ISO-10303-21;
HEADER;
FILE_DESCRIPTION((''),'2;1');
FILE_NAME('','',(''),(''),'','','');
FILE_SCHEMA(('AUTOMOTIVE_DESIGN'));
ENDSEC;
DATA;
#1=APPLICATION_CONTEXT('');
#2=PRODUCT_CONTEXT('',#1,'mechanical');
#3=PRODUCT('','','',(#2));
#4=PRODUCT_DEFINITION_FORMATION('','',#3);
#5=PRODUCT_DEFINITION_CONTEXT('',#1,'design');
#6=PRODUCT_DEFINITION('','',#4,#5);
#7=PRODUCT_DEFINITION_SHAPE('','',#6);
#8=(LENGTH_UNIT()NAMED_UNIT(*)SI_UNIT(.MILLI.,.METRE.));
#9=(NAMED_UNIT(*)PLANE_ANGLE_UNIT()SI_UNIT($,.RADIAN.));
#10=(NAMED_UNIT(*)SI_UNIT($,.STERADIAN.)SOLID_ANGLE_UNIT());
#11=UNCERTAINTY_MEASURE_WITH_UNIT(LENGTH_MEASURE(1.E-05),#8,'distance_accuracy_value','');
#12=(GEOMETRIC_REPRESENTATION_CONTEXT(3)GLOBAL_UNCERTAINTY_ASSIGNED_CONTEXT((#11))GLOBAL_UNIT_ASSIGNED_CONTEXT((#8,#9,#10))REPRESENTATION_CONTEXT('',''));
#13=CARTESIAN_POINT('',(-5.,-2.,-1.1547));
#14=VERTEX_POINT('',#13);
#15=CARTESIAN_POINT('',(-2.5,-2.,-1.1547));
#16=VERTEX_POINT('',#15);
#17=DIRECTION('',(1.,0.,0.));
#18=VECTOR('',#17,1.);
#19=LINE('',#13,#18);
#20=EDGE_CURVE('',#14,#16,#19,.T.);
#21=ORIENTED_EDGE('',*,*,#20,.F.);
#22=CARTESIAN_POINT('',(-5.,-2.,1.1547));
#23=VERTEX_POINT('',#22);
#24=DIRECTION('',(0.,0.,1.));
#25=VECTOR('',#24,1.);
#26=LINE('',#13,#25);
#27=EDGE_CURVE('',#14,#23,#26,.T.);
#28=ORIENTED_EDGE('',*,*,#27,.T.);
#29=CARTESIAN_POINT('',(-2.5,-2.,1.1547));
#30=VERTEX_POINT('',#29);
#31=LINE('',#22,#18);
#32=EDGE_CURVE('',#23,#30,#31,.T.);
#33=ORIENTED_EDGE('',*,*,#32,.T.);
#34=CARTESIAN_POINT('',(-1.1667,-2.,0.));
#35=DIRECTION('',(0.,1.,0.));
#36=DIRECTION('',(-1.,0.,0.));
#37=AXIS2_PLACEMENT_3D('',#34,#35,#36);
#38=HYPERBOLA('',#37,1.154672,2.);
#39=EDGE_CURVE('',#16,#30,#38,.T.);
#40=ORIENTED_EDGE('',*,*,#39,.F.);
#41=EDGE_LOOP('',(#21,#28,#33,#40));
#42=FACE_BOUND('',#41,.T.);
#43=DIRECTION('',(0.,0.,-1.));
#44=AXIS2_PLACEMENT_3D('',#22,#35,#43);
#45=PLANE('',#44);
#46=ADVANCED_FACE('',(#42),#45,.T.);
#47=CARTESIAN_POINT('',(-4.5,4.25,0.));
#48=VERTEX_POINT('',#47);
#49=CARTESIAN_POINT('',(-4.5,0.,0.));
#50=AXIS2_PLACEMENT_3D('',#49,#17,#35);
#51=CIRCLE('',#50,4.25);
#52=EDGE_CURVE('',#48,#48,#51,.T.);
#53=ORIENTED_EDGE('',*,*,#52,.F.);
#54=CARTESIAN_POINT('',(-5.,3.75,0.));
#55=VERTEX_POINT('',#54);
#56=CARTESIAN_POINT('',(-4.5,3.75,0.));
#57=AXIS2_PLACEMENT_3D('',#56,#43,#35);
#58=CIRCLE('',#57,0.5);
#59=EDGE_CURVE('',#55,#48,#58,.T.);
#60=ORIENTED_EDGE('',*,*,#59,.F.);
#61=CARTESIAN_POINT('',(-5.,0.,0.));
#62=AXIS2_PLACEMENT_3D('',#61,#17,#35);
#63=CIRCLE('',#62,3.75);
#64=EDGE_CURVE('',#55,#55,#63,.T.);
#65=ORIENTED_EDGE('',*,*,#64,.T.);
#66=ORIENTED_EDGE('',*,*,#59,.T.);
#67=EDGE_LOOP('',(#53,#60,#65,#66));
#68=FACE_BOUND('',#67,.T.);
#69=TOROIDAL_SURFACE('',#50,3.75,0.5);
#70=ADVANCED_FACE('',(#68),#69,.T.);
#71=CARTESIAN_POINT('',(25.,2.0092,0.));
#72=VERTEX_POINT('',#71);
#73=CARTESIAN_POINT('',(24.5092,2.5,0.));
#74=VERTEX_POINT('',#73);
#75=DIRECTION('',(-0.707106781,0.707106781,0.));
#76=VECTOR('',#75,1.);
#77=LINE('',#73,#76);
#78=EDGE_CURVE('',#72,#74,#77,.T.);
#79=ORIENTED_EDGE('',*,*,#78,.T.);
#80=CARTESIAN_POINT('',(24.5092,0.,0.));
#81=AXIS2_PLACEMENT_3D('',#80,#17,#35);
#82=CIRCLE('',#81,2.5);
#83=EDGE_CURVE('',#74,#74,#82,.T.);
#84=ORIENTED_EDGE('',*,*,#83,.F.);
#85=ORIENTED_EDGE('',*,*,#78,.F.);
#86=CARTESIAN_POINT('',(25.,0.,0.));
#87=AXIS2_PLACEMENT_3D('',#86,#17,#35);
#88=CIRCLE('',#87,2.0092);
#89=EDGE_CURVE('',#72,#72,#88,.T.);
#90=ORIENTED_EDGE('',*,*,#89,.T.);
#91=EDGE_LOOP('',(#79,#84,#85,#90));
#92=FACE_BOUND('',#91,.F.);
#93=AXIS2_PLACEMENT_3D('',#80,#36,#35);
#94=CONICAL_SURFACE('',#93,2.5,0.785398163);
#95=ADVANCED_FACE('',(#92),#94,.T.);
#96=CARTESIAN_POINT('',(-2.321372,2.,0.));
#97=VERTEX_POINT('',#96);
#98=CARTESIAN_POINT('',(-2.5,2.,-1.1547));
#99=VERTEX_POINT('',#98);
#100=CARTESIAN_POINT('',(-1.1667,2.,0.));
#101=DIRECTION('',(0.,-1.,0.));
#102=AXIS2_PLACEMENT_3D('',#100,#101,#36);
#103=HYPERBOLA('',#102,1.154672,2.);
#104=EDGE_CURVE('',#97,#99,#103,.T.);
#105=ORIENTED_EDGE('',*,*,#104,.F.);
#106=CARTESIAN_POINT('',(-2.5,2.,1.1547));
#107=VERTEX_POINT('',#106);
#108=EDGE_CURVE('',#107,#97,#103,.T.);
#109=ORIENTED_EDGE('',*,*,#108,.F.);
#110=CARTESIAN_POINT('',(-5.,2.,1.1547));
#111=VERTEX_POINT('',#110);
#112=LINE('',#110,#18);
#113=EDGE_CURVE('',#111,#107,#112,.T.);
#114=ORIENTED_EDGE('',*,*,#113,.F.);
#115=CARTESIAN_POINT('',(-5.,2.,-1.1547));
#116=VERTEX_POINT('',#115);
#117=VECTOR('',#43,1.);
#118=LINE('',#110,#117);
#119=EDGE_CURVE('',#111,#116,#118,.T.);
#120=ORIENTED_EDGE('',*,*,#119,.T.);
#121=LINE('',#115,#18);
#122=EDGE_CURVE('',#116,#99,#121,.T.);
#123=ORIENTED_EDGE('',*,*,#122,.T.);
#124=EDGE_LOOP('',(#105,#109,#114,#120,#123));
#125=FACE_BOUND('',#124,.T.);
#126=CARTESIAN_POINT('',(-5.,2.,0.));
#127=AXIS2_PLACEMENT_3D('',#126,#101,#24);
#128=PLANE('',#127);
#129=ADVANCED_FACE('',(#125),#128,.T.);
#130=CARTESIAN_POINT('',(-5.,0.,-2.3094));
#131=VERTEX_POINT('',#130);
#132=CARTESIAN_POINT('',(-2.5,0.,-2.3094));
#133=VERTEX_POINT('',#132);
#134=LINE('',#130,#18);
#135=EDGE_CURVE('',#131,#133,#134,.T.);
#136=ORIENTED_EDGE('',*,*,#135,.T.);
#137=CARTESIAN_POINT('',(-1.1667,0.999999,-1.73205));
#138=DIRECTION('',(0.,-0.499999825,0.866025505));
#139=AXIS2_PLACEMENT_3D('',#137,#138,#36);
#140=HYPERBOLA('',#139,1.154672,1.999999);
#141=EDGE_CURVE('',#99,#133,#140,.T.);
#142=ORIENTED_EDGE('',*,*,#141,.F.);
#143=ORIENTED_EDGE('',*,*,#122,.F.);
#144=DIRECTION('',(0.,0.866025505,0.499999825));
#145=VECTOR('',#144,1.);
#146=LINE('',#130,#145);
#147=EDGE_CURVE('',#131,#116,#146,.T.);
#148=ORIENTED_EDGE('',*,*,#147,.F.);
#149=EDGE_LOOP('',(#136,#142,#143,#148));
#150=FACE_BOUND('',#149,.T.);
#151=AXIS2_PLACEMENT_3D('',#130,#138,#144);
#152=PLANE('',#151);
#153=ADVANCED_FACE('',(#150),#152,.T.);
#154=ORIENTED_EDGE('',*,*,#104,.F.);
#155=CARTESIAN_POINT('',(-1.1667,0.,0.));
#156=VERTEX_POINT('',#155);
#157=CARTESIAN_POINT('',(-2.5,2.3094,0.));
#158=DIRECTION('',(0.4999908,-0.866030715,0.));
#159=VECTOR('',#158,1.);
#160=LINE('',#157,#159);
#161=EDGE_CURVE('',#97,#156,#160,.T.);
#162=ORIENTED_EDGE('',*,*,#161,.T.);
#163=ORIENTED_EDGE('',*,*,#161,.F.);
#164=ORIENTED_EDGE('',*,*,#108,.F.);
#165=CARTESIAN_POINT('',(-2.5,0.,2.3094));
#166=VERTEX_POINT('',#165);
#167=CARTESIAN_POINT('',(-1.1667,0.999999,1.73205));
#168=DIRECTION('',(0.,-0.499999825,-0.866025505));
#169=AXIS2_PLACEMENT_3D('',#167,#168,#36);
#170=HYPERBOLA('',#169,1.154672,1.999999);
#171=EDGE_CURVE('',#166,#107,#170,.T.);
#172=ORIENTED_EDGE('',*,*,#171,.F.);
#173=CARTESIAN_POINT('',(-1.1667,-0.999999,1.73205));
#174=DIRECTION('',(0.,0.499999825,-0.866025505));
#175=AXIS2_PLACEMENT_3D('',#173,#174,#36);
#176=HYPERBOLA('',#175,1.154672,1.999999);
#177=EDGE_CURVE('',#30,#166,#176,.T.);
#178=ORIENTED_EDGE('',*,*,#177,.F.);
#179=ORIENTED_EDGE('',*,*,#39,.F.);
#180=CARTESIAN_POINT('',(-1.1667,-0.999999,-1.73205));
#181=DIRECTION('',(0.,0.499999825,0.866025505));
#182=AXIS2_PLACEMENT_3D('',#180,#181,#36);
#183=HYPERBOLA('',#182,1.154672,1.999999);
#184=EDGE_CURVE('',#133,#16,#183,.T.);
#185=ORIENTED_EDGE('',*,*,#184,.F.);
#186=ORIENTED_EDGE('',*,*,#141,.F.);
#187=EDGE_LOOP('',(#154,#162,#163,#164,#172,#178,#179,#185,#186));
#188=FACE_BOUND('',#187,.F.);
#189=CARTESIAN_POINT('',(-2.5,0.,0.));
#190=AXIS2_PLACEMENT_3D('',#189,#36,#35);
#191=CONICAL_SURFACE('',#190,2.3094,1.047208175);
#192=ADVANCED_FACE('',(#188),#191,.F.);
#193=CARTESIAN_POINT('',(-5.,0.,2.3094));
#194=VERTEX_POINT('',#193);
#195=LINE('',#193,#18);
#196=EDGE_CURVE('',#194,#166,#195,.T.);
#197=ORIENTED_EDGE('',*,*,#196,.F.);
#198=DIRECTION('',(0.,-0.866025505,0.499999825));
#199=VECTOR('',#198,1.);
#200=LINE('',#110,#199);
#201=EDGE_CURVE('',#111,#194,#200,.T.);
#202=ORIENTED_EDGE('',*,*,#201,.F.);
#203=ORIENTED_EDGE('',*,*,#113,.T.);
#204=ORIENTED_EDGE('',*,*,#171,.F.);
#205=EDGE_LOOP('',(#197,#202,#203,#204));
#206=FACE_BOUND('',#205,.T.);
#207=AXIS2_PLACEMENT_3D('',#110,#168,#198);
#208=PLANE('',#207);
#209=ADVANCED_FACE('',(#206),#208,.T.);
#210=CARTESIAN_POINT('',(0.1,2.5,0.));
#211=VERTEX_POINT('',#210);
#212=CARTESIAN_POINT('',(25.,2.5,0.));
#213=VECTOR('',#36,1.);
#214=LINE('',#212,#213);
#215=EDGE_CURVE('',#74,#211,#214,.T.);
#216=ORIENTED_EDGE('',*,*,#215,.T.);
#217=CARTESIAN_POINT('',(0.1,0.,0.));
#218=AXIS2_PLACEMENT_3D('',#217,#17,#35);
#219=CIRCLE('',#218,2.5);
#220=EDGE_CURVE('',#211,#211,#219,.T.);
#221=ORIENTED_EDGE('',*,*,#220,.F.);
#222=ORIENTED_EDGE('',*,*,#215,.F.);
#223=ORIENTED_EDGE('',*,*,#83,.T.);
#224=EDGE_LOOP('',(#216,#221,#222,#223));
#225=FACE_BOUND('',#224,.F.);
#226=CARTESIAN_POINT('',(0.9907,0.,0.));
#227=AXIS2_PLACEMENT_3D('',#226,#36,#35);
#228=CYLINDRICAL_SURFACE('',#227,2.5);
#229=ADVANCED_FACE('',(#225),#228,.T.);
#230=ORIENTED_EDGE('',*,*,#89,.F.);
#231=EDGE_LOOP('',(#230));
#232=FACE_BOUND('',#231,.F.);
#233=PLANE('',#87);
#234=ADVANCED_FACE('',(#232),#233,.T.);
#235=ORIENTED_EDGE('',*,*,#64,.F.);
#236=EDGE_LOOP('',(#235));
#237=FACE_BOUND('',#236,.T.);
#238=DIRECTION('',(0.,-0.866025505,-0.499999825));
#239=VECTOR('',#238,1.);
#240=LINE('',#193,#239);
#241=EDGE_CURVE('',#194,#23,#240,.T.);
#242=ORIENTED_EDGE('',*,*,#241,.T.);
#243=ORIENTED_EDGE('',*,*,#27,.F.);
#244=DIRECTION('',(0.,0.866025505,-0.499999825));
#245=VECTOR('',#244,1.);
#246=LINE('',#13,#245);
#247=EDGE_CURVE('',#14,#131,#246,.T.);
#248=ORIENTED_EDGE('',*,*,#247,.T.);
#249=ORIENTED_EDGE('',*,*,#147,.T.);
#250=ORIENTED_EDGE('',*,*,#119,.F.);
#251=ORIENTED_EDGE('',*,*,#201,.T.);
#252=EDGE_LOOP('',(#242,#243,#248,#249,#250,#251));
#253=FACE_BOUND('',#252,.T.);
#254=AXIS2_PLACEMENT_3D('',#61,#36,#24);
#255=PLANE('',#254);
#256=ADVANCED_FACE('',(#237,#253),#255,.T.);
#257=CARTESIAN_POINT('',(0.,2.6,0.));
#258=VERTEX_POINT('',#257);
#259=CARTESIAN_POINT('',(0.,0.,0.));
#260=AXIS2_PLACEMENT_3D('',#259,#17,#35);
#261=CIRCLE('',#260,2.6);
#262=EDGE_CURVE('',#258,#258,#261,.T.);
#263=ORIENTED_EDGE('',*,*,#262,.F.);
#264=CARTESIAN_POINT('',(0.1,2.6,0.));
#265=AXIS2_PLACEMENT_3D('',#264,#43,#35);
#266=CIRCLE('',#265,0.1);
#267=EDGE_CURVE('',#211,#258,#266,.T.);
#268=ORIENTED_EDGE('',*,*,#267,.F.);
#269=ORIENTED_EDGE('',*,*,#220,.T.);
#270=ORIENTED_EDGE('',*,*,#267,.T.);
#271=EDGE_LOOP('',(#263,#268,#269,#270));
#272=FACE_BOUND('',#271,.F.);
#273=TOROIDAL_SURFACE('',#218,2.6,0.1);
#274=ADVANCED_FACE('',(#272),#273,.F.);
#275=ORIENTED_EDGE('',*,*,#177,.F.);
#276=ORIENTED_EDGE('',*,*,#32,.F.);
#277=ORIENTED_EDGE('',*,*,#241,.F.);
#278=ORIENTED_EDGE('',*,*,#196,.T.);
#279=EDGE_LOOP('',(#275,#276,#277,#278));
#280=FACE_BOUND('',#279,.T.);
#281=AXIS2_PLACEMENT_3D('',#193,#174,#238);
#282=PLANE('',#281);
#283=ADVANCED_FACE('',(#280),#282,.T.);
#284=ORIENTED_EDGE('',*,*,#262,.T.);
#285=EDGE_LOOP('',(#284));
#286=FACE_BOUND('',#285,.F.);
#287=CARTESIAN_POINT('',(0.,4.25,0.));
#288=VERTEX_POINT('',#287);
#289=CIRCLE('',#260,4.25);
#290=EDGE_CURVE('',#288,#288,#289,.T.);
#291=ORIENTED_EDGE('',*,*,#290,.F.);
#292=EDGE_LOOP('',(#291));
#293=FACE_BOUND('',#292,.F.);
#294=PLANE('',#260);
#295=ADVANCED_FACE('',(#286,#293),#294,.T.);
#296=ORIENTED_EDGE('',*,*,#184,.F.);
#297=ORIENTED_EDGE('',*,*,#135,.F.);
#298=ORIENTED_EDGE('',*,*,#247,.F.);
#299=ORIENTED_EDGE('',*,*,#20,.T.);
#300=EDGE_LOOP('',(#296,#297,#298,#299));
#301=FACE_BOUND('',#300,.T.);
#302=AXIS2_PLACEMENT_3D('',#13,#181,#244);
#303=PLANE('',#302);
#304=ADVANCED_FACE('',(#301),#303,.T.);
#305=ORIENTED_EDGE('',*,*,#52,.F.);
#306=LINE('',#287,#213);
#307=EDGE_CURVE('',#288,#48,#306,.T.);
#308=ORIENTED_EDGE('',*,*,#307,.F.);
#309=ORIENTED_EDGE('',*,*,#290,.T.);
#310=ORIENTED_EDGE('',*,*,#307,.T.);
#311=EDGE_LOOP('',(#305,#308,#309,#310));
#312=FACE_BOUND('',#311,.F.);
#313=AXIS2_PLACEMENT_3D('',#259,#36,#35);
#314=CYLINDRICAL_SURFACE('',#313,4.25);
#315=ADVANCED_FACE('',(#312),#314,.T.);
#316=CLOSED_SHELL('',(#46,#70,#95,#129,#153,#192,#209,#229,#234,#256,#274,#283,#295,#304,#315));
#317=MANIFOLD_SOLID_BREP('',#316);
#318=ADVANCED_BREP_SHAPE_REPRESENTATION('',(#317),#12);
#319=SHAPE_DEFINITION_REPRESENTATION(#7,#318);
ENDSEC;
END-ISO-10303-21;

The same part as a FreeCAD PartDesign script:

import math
import FreeCAD as App
import Part
import Sketcher
from FreeCAD import Vector
Q = App.Units.Quantity


def edges_at(feature, points):
    """Names of the edges that pass closest to the given points."""
    edges = feature.Shape.Edges
    near = lambda p: min(range(len(edges)), key=lambda i: edges[i].distToShape(Part.Vertex(*p))[0])
    return sorted({f"Edge{near(p) + 1}" for p in points})

doc = App.newDocument("Part")
params = doc.addObject("Spreadsheet::Sheet", "Params")
for row, (alias, value) in enumerate([
    ("sketch1_width", "25 mm"),
    ("sketch1_width2", "5 mm"),
    ("sketch1_width3", "2.5 mm"),
    ("sketch1_height", "1.75 mm"),
    ("revolution_angle", "360 deg"),
    ("pad1_length", "2.6786 mm"),
    ("fillet_radius", "0.5 mm"),
    ("chamfer_size", "0.4908 mm"),
    ("chamfer_size2", "0.4908 mm"),
    ("fillet2_radius", "0.1 mm"),
], start=1):
    params.set(f"A{row}", alias)
    params.set(f"B{row}", "=" + value)
    params.setAlias(f"B{row}", alias)

body = doc.addObject("PartDesign::Body", "Body")

# Sketch on XY plane
sketch1 = body.newObject("Sketcher::SketchObject", "Sketch")
sketch1.AttachmentSupport = (doc.getObject("XY_Plane"), [""])
sketch1.MapMode = "FlatFace"
sketch1.addGeometry([
    Part.LineSegment(Vector(-2.5, 2.3, 0), Vector(-1.2, 0, 0)),  # 0
    Part.LineSegment(Vector(-1.2, 0, 0), Vector(25, 0, 0)),  # 1
    Part.LineSegment(Vector(25, 0, 0), Vector(25, 2.5, 0)),  # 2
    Part.LineSegment(Vector(25, 2.5, 0), Vector(0, 2.5, 0)),  # 3
    Part.LineSegment(Vector(0, 2.5, 0), Vector(0, 4.2, 0)),  # 4
    Part.LineSegment(Vector(0, 4.2, 0), Vector(-5, 4.2, 0)),  # 5
    Part.LineSegment(Vector(-5, 4.2, 0), Vector(-5, 2.3, 0)),  # 6
    Part.LineSegment(Vector(-5, 2.3, 0), Vector(-2.5, 2.3, 0)),  # 7
], False)
sketch1.addConstraint([
    Sketcher.Constraint("Coincident", 0, 2, 1, 1),
    Sketcher.Constraint("Coincident", 1, 2, 2, 1),
    Sketcher.Constraint("Coincident", 2, 2, 3, 1),
    Sketcher.Constraint("Coincident", 3, 2, 4, 1),
    Sketcher.Constraint("Coincident", 4, 2, 5, 1),
    Sketcher.Constraint("Coincident", 5, 2, 6, 1),
    Sketcher.Constraint("Coincident", 6, 2, 7, 1),
    Sketcher.Constraint("Coincident", 7, 2, 0, 1),
    Sketcher.Constraint("Horizontal", 1),
    Sketcher.Constraint("Vertical", 2),
    Sketcher.Constraint("Horizontal", 3),
    Sketcher.Constraint("Vertical", 4),
    Sketcher.Constraint("Horizontal", 5),
    Sketcher.Constraint("Vertical", 6),
    Sketcher.Constraint("Horizontal", 7),
    Sketcher.Constraint("PointOnObject", 0, 2, -1),
    Sketcher.Constraint("PointOnObject", 3, 2, -2),
    Sketcher.Constraint("Equal", 7, 2),
    Sketcher.Constraint("DistanceX", 3, 2, 3, 1, Q("25 mm")),
    Sketcher.Constraint("DistanceX", 5, 2, 5, 1, Q("5 mm")),
    Sketcher.Constraint("DistanceX", 7, 1, 7, 2, Q("2.5 mm")),
    Sketcher.Constraint("Angle", 0, Q("-60.0006 deg")),
    Sketcher.Constraint("DistanceY", 4, 1, 4, 2, Q("1.75 mm")),
    Sketcher.Constraint("DistanceX", 1, 1, 1, 2, Q("26.1667 mm")),
])
sketch1.setExpression("Constraints[18]", "Params.sketch1_width")
sketch1.setExpression("Constraints[19]", "Params.sketch1_width2")
sketch1.setExpression("Constraints[20]", "Params.sketch1_width3")
sketch1.setExpression("Constraints[22]", "Params.sketch1_height")
revolution = body.newObject("PartDesign::Revolution", "Revolution")
revolution.Profile = sketch1
revolution.ReferenceAxis = (sketch1, ["H_Axis"])
revolution.setExpression("Angle", "Params.revolution_angle")

# Sketch on YZ plane
sketch2 = body.newObject("Sketcher::SketchObject", "Sketch001")
sketch2.AttachmentSupport = (doc.getObject("YZ_Plane"), [""])
sketch2.MapMode = "FlatFace"
sketch2.AttachmentOffset = App.Placement(Vector(0, 0, -5), App.Rotation())
sketch2.addGeometry([
    Part.LineSegment(Vector(2, 1.2, 0), Vector(0, 2.3, 0)),  # 0
    Part.ArcOfCircle(Part.Circle(Vector(0, 0, 0), Vector(0, 0, 1), 2.3), math.radians(30), math.radians(90)),  # 1
    Part.ArcOfCircle(Part.Circle(Vector(0, 0, 0), Vector(0, 0, 1), 2.3), math.radians(90), math.radians(150)),  # 2
    Part.LineSegment(Vector(0, 2.3, 0), Vector(-2, 1.2, 0)),  # 3
    Part.ArcOfCircle(Part.Circle(Vector(0, 0, 0), Vector(0, 0, 1), 2.3), math.radians(-30), math.radians(30)),  # 4
    Part.LineSegment(Vector(2, -1.2, 0), Vector(2, 1.2, 0)),  # 5
    Part.LineSegment(Vector(-2, 1.2, 0), Vector(-2, -1.2, 0)),  # 6
    Part.ArcOfCircle(Part.Circle(Vector(0, 0, 0), Vector(0, 0, 1), 2.3), math.radians(150), math.radians(210)),  # 7
    Part.LineSegment(Vector(-2, -1.2, 0), Vector(0, -2.3, 0)),  # 8
    Part.ArcOfCircle(Part.Circle(Vector(0, 0, 0), Vector(0, 0, 1), 2.3), math.radians(-150), math.radians(-90)),  # 9
    Part.ArcOfCircle(Part.Circle(Vector(0, 0, 0), Vector(0, 0, 1), 2.3), math.radians(-90), math.radians(-30)),  # 10
    Part.LineSegment(Vector(0, -2.3, 0), Vector(2, -1.2, 0)),  # 11
], False)
sketch2.addConstraint([
    Sketcher.Constraint("Coincident", 0, 1, 1, 1),
    Sketcher.Constraint("Coincident", 1, 2, 0, 2),
    Sketcher.Constraint("Coincident", 2, 1, 3, 1),
    Sketcher.Constraint("Coincident", 3, 2, 2, 2),
    Sketcher.Constraint("Coincident", 4, 1, 5, 1),
    Sketcher.Constraint("Coincident", 5, 2, 4, 2),
    Sketcher.Constraint("Coincident", 6, 1, 7, 1),
    Sketcher.Constraint("Coincident", 7, 2, 6, 2),
    Sketcher.Constraint("Coincident", 8, 1, 9, 1),
    Sketcher.Constraint("Coincident", 9, 2, 8, 2),
    Sketcher.Constraint("Coincident", 10, 1, 11, 1),
    Sketcher.Constraint("Coincident", 11, 2, 10, 2),
    Sketcher.Constraint("Vertical", 5),
    Sketcher.Constraint("Vertical", 6),
    Sketcher.Constraint("Coincident", 1, 3, -1, 1),
    Sketcher.Constraint("Coincident", 2, 3, -1, 1),
    Sketcher.Constraint("Coincident", 4, 3, -1, 1),
    Sketcher.Constraint("Coincident", 7, 3, -1, 1),
    Sketcher.Constraint("Coincident", 9, 3, -1, 1),
    Sketcher.Constraint("Coincident", 10, 3, -1, 1),
    Sketcher.Constraint("Coincident", 2, 1, 1, 2),
    Sketcher.Constraint("Coincident", 5, 2, 0, 1),
    Sketcher.Constraint("Coincident", 6, 1, 3, 2),
    Sketcher.Constraint("Coincident", 8, 1, 7, 2),
    Sketcher.Constraint("Coincident", 10, 1, 9, 2),
    Sketcher.Constraint("PointOnObject", 1, 2, -2),
    Sketcher.Constraint("PointOnObject", 9, 2, -2),
    Sketcher.Constraint("Parallel", 0, 8),
    Sketcher.Constraint("Parallel", 3, 11),
    Sketcher.Constraint("Angle", 0, Q("150 deg")),
    Sketcher.Constraint("DistanceX", -1, 1, 0, 1, Q("2 mm")),
])
pad1 = body.newObject("PartDesign::Pad", "Pad")
pad1.Profile = sketch2
pad1.setExpression("Length", "Params.pad1_length")
doc.recompute()

fillet = body.newObject("PartDesign::Fillet", "Fillet")
fillet.Base = (pad1, edges_at(pad1, [(-5, -4.25, 0)]))
fillet.setExpression("Radius", "Params.fillet_radius")
doc.recompute()

chamfer = body.newObject("PartDesign::Chamfer", "Chamfer")
chamfer.Base = (fillet, edges_at(fillet, [(25, -2.5, 0)]))
chamfer.ChamferType = "Two distances"
chamfer.setExpression("Size", "Params.chamfer_size")
chamfer.setExpression("Size2", "Params.chamfer_size2")
doc.recompute()

fillet2 = body.newObject("PartDesign::Fillet", "Fillet001")
fillet2.Base = (chamfer, edges_at(chamfer, [(0, -2.5, 0)]))
fillet2.setExpression("Radius", "Params.fillet2_radius")

doc.recompute()
